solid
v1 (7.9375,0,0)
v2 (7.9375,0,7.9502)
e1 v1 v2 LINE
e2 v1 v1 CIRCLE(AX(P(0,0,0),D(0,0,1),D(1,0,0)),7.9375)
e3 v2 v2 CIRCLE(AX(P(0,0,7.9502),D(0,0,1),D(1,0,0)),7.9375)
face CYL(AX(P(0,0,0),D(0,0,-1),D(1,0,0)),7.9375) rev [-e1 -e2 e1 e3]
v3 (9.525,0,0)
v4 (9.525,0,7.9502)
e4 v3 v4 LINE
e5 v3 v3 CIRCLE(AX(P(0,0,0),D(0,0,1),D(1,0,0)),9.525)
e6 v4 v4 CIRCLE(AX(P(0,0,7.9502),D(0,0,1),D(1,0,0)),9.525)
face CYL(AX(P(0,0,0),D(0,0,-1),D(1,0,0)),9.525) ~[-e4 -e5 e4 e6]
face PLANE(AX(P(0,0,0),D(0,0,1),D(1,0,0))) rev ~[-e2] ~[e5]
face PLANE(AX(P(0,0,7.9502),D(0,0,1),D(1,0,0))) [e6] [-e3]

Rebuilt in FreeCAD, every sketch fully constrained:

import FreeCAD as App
import Part
import Sketcher

V = App.Vector
Q = App.Units.Quantity

doc = App.newDocument("Part")
body = doc.addObject("PartDesign::Body", "Body")

sketch1 = body.newObject("Sketcher::SketchObject", "Sketch")
sketch1.AttachmentSupport = (doc.getObject("XY_Plane"), [""])
sketch1.MapMode = "FlatFace"
sketch1.addGeometry(Part.Circle(V(0, 0, 0), V(0, 0, 1), 10), False)
sketch1.addGeometry(Part.Circle(V(0, 0, 0), V(0, 0, 1), 8), False)
sketch1.addConstraint(Sketcher.Constraint("Coincident", 0, 3, -1, 1))
sketch1.addConstraint(Sketcher.Constraint("Coincident", 1, 3, -1, 1))
sketch1.addConstraint(Sketcher.Constraint("Diameter", 0, Q("0.75 in")))
sketch1.addConstraint(Sketcher.Constraint("Diameter", 1, Q("0.625 in")))
pad1 = body.newObject("PartDesign::Pad", "Pad")
pad1.Profile = sketch1
pad1.Length = Q("0.313 in")

doc.recompute()
